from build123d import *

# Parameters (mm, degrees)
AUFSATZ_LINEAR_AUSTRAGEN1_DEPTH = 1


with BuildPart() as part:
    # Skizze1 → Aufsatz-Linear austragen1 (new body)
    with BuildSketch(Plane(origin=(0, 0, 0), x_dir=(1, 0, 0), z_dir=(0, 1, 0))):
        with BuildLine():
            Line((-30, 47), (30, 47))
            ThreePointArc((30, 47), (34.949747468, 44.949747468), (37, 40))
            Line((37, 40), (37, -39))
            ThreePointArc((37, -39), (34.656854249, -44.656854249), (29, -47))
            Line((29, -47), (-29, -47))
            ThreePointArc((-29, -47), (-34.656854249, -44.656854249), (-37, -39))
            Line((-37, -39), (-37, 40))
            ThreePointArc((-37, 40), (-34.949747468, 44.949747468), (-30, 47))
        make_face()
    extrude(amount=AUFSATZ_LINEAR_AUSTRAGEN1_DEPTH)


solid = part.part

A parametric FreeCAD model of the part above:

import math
import FreeCAD as App
import Part
import Sketcher

V = App.Vector
Q = App.Units.Quantity

doc = App.newDocument("Part")
body = doc.addObject("PartDesign::Body", "Body")

# Sketch on XZ plane
sketch1 = body.newObject("Sketcher::SketchObject", "Sketch")
sketch1.AttachmentSupport = (doc.getObject("XZ_Plane"), [""])
sketch1.MapMode = "FlatFace"
sketch1.addGeometry([
    Part.LineSegment(V(30, -47, 0), V(-30, -47, 0)),  # 0
    Part.ArcOfCircle(Part.Circle(V(-30, -40, 0), V(0, 0, 1), 7), math.radians(-180), math.radians(-90)),  # 1
    Part.LineSegment(V(-37, -40, 0), V(-37, 39, 0)),  # 2
    Part.ArcOfCircle(Part.Circle(V(-29, 39, 0), V(0, 0, 1), 8), math.radians(90), math.radians(180)),  # 3
    Part.LineSegment(V(-29, 47, 0), V(29, 47, 0)),  # 4
    Part.ArcOfCircle(Part.Circle(V(29, 39, 0), V(0, 0, 1), 8), math.radians(0), math.radians(90)),  # 5
    Part.LineSegment(V(37, 39, 0), V(37, -40, 0)),  # 6
    Part.ArcOfCircle(Part.Circle(V(30, -40, 0), V(0, 0, 1), 7), math.radians(-90), math.radians(0)),  # 7
], False)
sketch1.addConstraint([
    Sketcher.Constraint("Tangent", 0, 2, 1, 2),
    Sketcher.Constraint("Tangent", 1, 1, 2, 1),
    Sketcher.Constraint("Tangent", 2, 2, 3, 2),
    Sketcher.Constraint("Tangent", 3, 1, 4, 1),
    Sketcher.Constraint("Tangent", 4, 2, 5, 2),
    Sketcher.Constraint("Tangent", 5, 1, 6, 1),
    Sketcher.Constraint("Tangent", 6, 2, 7, 2),
    Sketcher.Constraint("Tangent", 7, 1, 0, 1),
    Sketcher.Constraint("Horizontal", 0),
    Sketcher.Constraint("Vertical", 2),
    Sketcher.Constraint("Horizontal", 4),
    Sketcher.Constraint("Vertical", 6),
    Sketcher.Constraint("Equal", 3, 5),
    Sketcher.Constraint("Equal", 1, 7),
    Sketcher.Constraint("Radius", 1, Q("7 mm")),
    Sketcher.Constraint("Radius", 3, Q("8 mm")),
    Sketcher.Constraint("DistanceX", 0, 2, 0, 1, Q("60 mm")),
    Sketcher.Constraint("DistanceY", 2, 1, 2, 2, Q("79 mm")),
    Sketcher.Constraint("DistanceX", 1, 3, -1, 1, Q("30 mm")),
    Sketcher.Constraint("DistanceY", 1, 3, -1, 1, Q("40 mm")),
])
pad1 = body.newObject("PartDesign::Pad", "Pad")
pad1.Profile = sketch1
pad1.Length = 1
pad1.Reversed = True

doc.recompute()
